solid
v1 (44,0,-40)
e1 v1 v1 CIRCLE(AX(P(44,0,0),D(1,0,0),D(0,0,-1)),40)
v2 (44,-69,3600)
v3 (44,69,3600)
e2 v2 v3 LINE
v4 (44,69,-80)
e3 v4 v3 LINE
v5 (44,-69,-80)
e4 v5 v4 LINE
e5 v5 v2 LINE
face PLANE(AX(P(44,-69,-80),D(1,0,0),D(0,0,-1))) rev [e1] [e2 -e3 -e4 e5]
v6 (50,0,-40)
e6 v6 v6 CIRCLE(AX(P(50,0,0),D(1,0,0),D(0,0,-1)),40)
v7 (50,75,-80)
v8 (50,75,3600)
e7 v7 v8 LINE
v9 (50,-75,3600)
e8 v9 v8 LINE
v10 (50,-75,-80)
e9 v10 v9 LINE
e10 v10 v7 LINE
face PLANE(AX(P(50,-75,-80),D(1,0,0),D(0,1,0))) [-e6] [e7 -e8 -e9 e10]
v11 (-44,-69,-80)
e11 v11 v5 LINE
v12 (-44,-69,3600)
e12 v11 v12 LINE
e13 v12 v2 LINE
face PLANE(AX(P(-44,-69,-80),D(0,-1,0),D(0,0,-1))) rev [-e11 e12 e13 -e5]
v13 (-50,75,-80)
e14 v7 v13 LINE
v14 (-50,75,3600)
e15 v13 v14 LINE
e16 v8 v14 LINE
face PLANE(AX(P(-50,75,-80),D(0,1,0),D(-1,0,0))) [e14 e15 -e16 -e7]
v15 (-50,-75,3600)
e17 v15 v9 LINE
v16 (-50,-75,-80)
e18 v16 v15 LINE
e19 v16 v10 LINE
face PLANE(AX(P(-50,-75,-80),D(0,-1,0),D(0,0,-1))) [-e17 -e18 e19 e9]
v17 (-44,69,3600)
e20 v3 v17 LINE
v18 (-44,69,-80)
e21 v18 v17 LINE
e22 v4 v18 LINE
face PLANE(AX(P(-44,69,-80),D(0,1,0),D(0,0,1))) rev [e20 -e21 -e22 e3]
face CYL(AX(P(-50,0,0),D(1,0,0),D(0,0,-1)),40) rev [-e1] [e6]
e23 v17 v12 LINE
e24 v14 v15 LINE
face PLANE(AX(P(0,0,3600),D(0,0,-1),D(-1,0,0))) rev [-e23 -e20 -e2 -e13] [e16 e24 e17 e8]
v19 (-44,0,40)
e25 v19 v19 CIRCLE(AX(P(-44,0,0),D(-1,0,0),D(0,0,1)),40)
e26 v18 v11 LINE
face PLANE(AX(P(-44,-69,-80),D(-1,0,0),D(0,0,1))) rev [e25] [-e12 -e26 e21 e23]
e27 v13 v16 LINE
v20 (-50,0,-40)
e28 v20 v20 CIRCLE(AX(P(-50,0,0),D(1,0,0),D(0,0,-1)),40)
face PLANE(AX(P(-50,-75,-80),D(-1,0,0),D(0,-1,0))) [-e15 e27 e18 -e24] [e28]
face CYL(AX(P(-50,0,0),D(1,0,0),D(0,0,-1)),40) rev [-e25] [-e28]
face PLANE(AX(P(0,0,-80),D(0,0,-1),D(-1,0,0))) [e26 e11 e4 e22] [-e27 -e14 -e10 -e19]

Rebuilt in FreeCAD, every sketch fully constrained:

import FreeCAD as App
import Part
import Sketcher

V = App.Vector


def add_polygon(sketch, points):
    """Adds a closed chain of lines whose ends are joined by coincident constraints."""
    first, n = sketch.GeometryCount, len(points)
    for a, b in zip(points, points[1:] + points[:1]):
        sketch.addGeometry(Part.LineSegment(App.Vector(*a, 0), App.Vector(*b, 0)), False)
    for i in range(n):
        sketch.addConstraint(Sketcher.Constraint("Coincident", first + i, 2, first + (i + 1) % n, 1))

doc = App.newDocument("Part")
body = doc.addObject("PartDesign::Body", "Body")

sketch1 = body.newObject("Sketcher::SketchObject", "Sketch")
sketch1.AttachmentSupport = (doc.getObject("XY_Plane"), [""])
sketch1.MapMode = "FlatFace"
add_polygon(sketch1, [(-50, 75), (-50, -75), (50, -75), (50, 75)])
add_polygon(sketch1, [(44, -69), (-44, -69), (-44, 69), (44, 69)])
sketch1.addConstraint(Sketcher.Constraint("Vertical", 0))
sketch1.addConstraint(Sketcher.Constraint("Horizontal", 1))
sketch1.addConstraint(Sketcher.Constraint("Vertical", 2))
sketch1.addConstraint(Sketcher.Constraint("Horizontal", 3))
sketch1.addConstraint(Sketcher.Constraint("Horizontal", 4))
sketch1.addConstraint(Sketcher.Constraint("Vertical", 5))
sketch1.addConstraint(Sketcher.Constraint("Horizontal", 6))
sketch1.addConstraint(Sketcher.Constraint("Vertical", 7))
sketch1.addConstraint(Sketcher.Constraint("Symmetric", 0, 2, 2, 2, -1, 1))
sketch1.addConstraint(Sketcher.Constraint("Symmetric", 4, 2, 6, 2, -1, 1))
sketch1.addConstraint(Sketcher.Constraint("DistanceX", 1, 1, 1, 2, 100.0))
sketch1.addConstraint(Sketcher.Constraint("DistanceX", 4, 2, 4, 1, 88.0))
sketch1.addConstraint(Sketcher.Constraint("DistanceY", 0, 2, 0, 1, 150.0))
sketch1.addConstraint(Sketcher.Constraint("DistanceY", 5, 1, 5, 2, 138.0))
pad1 = body.newObject("PartDesign::Pad", "Pad")
pad1.Profile = sketch1
pad1.Type = "TwoLengths"
pad1.Length = 3600
pad1.Length2 = 80

sketch2 = body.newObject("Sketcher::SketchObject", "Sketch001")
sketch2.AttachmentSupport = (doc.getObject("YZ_Plane"), [""])
sketch2.MapMode = "FlatFace"
sketch2.addGeometry(Part.Circle(V(0, 0, 0), V(0, 0, 1), 40), False)
sketch2.addConstraint(Sketcher.Constraint("Coincident", 0, 3, -1, 1))
sketch2.addConstraint(Sketcher.Constraint("Diameter", 0, 80.0))
pocket1 = body.newObject("PartDesign::Pocket", "Pocket")
pocket1.Profile = sketch2
pocket1.Type = "ThroughAll"
pocket1.Midplane = True

doc.recompute()
